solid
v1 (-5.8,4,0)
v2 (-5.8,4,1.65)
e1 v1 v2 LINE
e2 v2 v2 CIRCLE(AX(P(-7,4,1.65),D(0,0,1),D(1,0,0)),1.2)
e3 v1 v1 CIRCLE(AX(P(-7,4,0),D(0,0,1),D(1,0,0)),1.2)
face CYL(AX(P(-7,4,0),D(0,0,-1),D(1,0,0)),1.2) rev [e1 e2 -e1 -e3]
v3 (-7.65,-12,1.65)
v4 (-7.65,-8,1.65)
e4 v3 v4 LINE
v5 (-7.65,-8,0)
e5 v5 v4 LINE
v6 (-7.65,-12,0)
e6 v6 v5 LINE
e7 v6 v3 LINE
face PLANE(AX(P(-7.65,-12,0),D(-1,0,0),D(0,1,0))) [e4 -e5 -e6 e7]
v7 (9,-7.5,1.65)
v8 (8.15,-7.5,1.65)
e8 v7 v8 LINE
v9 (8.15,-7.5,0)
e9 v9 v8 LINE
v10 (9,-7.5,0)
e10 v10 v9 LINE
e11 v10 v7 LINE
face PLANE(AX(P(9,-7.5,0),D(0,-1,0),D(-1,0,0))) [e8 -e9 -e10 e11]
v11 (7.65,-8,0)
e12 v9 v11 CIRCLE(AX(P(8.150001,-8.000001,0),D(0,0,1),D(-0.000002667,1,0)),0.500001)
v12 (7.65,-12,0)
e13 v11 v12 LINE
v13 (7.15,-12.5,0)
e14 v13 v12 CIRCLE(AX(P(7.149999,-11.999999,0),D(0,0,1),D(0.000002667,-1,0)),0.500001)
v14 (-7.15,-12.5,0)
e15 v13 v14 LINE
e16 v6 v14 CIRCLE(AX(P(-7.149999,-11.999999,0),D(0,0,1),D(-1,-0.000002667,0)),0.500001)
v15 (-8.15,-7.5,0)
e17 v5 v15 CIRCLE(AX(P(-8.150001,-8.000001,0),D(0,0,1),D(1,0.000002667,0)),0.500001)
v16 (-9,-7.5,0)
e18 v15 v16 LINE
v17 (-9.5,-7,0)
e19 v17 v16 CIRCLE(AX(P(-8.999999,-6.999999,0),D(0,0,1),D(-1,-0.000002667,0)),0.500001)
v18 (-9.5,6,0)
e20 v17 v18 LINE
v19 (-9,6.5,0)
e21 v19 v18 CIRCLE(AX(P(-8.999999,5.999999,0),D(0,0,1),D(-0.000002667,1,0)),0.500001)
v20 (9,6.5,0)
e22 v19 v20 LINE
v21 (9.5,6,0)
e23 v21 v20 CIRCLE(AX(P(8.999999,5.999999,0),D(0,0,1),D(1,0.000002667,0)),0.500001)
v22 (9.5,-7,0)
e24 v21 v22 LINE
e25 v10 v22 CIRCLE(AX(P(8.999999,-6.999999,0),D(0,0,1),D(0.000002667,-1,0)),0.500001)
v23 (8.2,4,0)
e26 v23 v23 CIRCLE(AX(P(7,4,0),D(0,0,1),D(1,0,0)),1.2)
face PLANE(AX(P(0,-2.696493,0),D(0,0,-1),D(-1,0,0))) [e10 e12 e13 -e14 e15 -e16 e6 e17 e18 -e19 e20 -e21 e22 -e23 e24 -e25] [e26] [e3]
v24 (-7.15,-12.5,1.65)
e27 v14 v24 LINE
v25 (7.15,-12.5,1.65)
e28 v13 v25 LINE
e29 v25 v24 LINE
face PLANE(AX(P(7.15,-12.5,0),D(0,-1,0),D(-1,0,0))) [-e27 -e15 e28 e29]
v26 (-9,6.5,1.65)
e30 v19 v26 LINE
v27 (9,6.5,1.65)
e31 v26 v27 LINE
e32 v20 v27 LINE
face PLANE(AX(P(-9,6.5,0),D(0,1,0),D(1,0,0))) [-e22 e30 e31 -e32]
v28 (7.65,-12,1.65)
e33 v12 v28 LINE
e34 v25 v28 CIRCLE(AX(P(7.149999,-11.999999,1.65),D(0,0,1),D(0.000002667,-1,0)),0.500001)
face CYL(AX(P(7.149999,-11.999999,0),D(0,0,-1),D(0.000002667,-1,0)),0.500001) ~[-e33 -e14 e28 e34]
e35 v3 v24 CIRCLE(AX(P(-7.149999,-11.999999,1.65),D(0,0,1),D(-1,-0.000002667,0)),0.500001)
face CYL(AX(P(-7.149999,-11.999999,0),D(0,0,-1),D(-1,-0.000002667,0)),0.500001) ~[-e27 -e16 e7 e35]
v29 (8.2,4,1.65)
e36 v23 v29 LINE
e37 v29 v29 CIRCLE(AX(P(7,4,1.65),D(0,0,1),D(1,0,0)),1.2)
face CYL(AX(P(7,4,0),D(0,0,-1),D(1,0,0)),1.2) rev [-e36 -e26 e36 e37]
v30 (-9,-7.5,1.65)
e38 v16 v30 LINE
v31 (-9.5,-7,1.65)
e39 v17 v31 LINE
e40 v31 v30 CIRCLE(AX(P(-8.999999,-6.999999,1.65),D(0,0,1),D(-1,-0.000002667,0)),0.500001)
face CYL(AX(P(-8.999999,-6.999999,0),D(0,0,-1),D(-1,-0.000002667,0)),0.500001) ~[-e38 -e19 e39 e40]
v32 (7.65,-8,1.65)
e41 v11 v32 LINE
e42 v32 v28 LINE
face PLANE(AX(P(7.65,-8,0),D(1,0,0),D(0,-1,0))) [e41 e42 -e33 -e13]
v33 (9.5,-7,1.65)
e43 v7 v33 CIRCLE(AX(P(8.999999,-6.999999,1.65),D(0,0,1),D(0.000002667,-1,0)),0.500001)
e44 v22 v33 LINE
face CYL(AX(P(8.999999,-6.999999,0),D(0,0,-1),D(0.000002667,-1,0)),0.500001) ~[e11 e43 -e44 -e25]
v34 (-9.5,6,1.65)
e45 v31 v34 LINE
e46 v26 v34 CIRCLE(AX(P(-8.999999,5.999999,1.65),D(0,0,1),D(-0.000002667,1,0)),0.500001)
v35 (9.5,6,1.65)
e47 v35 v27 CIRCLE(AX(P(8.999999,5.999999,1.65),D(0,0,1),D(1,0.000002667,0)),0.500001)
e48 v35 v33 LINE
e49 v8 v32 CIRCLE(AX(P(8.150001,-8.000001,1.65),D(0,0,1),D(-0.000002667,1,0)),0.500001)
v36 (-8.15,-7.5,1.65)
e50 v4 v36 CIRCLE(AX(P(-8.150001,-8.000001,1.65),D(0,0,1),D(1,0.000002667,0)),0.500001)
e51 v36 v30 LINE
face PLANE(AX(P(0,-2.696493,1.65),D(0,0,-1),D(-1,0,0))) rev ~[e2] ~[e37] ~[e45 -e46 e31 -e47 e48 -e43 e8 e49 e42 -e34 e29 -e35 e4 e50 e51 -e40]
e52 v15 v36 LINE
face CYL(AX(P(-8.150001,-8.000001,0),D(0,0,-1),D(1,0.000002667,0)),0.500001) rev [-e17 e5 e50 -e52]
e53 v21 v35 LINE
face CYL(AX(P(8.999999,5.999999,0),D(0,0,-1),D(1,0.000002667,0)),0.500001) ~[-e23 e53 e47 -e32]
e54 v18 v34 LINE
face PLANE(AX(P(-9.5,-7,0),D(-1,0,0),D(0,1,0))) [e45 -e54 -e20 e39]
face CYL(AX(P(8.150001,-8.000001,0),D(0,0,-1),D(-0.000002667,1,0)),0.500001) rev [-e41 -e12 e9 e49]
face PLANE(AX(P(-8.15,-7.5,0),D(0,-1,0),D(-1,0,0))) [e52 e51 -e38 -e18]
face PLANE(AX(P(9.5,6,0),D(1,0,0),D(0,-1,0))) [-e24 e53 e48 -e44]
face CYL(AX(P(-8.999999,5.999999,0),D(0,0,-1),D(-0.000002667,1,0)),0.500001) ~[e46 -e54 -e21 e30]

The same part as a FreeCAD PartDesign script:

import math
import FreeCAD as App
import Part
import Sketcher
from FreeCAD import Vector

doc = App.newDocument("Part")
body = doc.addObject("PartDesign::Body", "Body")

# Sketch on XY plane
sketch1 = body.newObject("Sketcher::SketchObject", "Sketch")
sketch1.AttachmentSupport = (doc.getObject("XY_Plane"), [""])
sketch1.MapMode = "FlatFace"
sketch1.addGeometry([
    Part.LineSegment(Vector(9, 6.5, 0), Vector(-9, 6.5, 0)),  # 0
    Part.ArcOfCircle(Part.Circle(Vector(-9, 6, 0), Vector(0, 0, 1), 0.5), math.radians(90), math.radians(180)),  # 1
    Part.LineSegment(Vector(-9.5, 6, 0), Vector(-9.5, -7, 0)),  # 2
    Part.ArcOfCircle(Part.Circle(Vector(-9, -7, 0), Vector(0, 0, 1), 0.5), math.radians(-180), math.radians(-90)),  # 3
    Part.LineSegment(Vector(-9, -7.5, 0), Vector(-8.2, -7.5, 0)),  # 4
    Part.ArcOfCircle(Part.Circle(Vector(-8.2, -8, 0), Vector(0, 0, 1), 0.5), math.radians(0), math.radians(90)),  # 5
    Part.LineSegment(Vector(-7.7, -8, 0), Vector(-7.7, -12, 0)),  # 6
    Part.ArcOfCircle(Part.Circle(Vector(-7.1, -12, 0), Vector(0, 0, 1), 0.5), math.radians(-180), math.radians(-90)),  # 7
    Part.LineSegment(Vector(-7.2, -12.5, 0), Vector(7.2, -12.5, 0)),  # 8
    Part.ArcOfCircle(Part.Circle(Vector(7.1, -12, 0), Vector(0, 0, 1), 0.5), math.radians(-90), math.radians(0)),  # 9
    Part.LineSegment(Vector(7.7, -12, 0), Vector(7.7, -8, 0)),  # 10
    Part.ArcOfCircle(Part.Circle(Vector(8.2, -8, 0), Vector(0, 0, 1), 0.5), math.radians(90), math.radians(180)),  # 11
    Part.LineSegment(Vector(8.2, -7.5, 0), Vector(9, -7.5, 0)),  # 12
    Part.ArcOfCircle(Part.Circle(Vector(9, -7, 0), Vector(0, 0, 1), 0.5), math.radians(-90), math.radians(0)),  # 13
    Part.LineSegment(Vector(9.5, -7, 0), Vector(9.5, 6, 0)),  # 14
    Part.ArcOfCircle(Part.Circle(Vector(9, 6, 0), Vector(0, 0, 1), 0.5), math.radians(0), math.radians(90)),  # 15
    Part.Circle(Vector(7, 4, 0), Vector(0, 0, 1), 1.2),  # 16
    Part.Circle(Vector(-7, 4, 0), Vector(0, 0, 1), 1.2),  # 17
], False)
sketch1.addConstraint([
    Sketcher.Constraint("Coincident", 0, 2, 1, 1),
    Sketcher.Constraint("Coincident", 1, 2, 2, 1),
    Sketcher.Constraint("Coincident", 2, 2, 3, 1),
    Sketcher.Constraint("Coincident", 3, 2, 4, 1),
    Sketcher.Constraint("Coincident", 4, 2, 5, 2),
    Sketcher.Constraint("Coincident", 5, 1, 6, 1),
    Sketcher.Constraint("Coincident", 6, 2, 7, 1),
    Sketcher.Constraint("Coincident", 7, 2, 8, 1),
    Sketcher.Constraint("Coincident", 8, 2, 9, 1),
    Sketcher.Constraint("Coincident", 9, 2, 10, 1),
    Sketcher.Constraint("Coincident", 10, 2, 11, 2),
    Sketcher.Constraint("Coincident", 11, 1, 12, 1),
    Sketcher.Constraint("Coincident", 12, 2, 13, 1),
    Sketcher.Constraint("Coincident", 13, 2, 14, 1),
    Sketcher.Constraint("Coincident", 14, 2, 15, 1),
    Sketcher.Constraint("Coincident", 15, 2, 0, 1),
    Sketcher.Constraint("Horizontal", 0),
    Sketcher.Constraint("Vertical", 2),
    Sketcher.Constraint("Horizontal", 4),
    Sketcher.Constraint("Vertical", 6),
    Sketcher.Constraint("Horizontal", 8),
    Sketcher.Constraint("Vertical", 10),
    Sketcher.Constraint("Horizontal", 12),
    Sketcher.Constraint("Vertical", 14),
    Sketcher.Constraint("Equal", 1, 3),
    Sketcher.Constraint("Equal", 3, 5),
    Sketcher.Constraint("Equal", 5, 7),
    Sketcher.Constraint("Equal", 7, 9),
    Sketcher.Constraint("Equal", 9, 11),
    Sketcher.Constraint("Equal", 11, 13),
    Sketcher.Constraint("Equal", 13, 15),
    Sketcher.Constraint("Equal", 16, 17),
    Sketcher.Constraint("Symmetric", 5, 3, 11, 3, -2),
    Sketcher.Constraint("Symmetric", 16, 3, 17, 3, -2),
    Sketcher.Constraint("Symmetric", 2, 2, 13, 2, -2),
    Sketcher.Constraint("Horizontal", 15, 3, 1, 2),
    Sketcher.Constraint("Horizontal", 13, 3, 2, 2),
    Sketcher.Constraint("Horizontal", 11, 3, 5, 1),
    Sketcher.Constraint("Horizontal", 9, 3, 6, 2),
    Sketcher.Constraint("Horizontal", 6, 2, 9, 2),
    Sketcher.Constraint("Horizontal", 5, 1, 10, 2),
    Sketcher.Constraint("Horizontal", 1, 2, 14, 2),
    Sketcher.Constraint("Vertical", 3, 3, 0, 2),
    Sketcher.Constraint("Vertical", 0, 2, 3, 2),
    Sketcher.Constraint("Vertical", 5, 3, 4, 2),
    Sketcher.Constraint("Vertical", 9, 3, 8, 2),
    Sketcher.Constraint("Vertical", 15, 3, 12, 2),
    Sketcher.Constraint("Vertical", 12, 2, 15, 2),
    Sketcher.Constraint("Equal", 4, 12),
    Sketcher.Constraint("Diameter", 16, 2.4),
    Sketcher.Constraint("Radius", 1, 0.500001),
    Sketcher.Constraint("DistanceX", 0, 2, 0, 1, 18.0),
    Sketcher.Constraint("DistanceY", 2, 2, 2, 1, 13.0),
    Sketcher.Constraint("DistanceY", 6, 2, 6, 1, 4.0),
    Sketcher.Constraint("DistanceX", 8, 1, 8, 2, 14.3),
    Sketcher.Constraint("DistanceY", -1, 1, 1, 3, 5.999999),
    Sketcher.Constraint("DistanceX", -1, 1, 16, 3, 7.0),
    Sketcher.Constraint("DistanceY", -1, 1, 16, 3, 4.0),
    Sketcher.Constraint("DistanceX", 5, 3, 7, 2, 1.000001),
])
pad1 = body.newObject("PartDesign::Pad", "Pad")
pad1.Profile = sketch1
pad1.Length = 1.65

doc.recompute()
